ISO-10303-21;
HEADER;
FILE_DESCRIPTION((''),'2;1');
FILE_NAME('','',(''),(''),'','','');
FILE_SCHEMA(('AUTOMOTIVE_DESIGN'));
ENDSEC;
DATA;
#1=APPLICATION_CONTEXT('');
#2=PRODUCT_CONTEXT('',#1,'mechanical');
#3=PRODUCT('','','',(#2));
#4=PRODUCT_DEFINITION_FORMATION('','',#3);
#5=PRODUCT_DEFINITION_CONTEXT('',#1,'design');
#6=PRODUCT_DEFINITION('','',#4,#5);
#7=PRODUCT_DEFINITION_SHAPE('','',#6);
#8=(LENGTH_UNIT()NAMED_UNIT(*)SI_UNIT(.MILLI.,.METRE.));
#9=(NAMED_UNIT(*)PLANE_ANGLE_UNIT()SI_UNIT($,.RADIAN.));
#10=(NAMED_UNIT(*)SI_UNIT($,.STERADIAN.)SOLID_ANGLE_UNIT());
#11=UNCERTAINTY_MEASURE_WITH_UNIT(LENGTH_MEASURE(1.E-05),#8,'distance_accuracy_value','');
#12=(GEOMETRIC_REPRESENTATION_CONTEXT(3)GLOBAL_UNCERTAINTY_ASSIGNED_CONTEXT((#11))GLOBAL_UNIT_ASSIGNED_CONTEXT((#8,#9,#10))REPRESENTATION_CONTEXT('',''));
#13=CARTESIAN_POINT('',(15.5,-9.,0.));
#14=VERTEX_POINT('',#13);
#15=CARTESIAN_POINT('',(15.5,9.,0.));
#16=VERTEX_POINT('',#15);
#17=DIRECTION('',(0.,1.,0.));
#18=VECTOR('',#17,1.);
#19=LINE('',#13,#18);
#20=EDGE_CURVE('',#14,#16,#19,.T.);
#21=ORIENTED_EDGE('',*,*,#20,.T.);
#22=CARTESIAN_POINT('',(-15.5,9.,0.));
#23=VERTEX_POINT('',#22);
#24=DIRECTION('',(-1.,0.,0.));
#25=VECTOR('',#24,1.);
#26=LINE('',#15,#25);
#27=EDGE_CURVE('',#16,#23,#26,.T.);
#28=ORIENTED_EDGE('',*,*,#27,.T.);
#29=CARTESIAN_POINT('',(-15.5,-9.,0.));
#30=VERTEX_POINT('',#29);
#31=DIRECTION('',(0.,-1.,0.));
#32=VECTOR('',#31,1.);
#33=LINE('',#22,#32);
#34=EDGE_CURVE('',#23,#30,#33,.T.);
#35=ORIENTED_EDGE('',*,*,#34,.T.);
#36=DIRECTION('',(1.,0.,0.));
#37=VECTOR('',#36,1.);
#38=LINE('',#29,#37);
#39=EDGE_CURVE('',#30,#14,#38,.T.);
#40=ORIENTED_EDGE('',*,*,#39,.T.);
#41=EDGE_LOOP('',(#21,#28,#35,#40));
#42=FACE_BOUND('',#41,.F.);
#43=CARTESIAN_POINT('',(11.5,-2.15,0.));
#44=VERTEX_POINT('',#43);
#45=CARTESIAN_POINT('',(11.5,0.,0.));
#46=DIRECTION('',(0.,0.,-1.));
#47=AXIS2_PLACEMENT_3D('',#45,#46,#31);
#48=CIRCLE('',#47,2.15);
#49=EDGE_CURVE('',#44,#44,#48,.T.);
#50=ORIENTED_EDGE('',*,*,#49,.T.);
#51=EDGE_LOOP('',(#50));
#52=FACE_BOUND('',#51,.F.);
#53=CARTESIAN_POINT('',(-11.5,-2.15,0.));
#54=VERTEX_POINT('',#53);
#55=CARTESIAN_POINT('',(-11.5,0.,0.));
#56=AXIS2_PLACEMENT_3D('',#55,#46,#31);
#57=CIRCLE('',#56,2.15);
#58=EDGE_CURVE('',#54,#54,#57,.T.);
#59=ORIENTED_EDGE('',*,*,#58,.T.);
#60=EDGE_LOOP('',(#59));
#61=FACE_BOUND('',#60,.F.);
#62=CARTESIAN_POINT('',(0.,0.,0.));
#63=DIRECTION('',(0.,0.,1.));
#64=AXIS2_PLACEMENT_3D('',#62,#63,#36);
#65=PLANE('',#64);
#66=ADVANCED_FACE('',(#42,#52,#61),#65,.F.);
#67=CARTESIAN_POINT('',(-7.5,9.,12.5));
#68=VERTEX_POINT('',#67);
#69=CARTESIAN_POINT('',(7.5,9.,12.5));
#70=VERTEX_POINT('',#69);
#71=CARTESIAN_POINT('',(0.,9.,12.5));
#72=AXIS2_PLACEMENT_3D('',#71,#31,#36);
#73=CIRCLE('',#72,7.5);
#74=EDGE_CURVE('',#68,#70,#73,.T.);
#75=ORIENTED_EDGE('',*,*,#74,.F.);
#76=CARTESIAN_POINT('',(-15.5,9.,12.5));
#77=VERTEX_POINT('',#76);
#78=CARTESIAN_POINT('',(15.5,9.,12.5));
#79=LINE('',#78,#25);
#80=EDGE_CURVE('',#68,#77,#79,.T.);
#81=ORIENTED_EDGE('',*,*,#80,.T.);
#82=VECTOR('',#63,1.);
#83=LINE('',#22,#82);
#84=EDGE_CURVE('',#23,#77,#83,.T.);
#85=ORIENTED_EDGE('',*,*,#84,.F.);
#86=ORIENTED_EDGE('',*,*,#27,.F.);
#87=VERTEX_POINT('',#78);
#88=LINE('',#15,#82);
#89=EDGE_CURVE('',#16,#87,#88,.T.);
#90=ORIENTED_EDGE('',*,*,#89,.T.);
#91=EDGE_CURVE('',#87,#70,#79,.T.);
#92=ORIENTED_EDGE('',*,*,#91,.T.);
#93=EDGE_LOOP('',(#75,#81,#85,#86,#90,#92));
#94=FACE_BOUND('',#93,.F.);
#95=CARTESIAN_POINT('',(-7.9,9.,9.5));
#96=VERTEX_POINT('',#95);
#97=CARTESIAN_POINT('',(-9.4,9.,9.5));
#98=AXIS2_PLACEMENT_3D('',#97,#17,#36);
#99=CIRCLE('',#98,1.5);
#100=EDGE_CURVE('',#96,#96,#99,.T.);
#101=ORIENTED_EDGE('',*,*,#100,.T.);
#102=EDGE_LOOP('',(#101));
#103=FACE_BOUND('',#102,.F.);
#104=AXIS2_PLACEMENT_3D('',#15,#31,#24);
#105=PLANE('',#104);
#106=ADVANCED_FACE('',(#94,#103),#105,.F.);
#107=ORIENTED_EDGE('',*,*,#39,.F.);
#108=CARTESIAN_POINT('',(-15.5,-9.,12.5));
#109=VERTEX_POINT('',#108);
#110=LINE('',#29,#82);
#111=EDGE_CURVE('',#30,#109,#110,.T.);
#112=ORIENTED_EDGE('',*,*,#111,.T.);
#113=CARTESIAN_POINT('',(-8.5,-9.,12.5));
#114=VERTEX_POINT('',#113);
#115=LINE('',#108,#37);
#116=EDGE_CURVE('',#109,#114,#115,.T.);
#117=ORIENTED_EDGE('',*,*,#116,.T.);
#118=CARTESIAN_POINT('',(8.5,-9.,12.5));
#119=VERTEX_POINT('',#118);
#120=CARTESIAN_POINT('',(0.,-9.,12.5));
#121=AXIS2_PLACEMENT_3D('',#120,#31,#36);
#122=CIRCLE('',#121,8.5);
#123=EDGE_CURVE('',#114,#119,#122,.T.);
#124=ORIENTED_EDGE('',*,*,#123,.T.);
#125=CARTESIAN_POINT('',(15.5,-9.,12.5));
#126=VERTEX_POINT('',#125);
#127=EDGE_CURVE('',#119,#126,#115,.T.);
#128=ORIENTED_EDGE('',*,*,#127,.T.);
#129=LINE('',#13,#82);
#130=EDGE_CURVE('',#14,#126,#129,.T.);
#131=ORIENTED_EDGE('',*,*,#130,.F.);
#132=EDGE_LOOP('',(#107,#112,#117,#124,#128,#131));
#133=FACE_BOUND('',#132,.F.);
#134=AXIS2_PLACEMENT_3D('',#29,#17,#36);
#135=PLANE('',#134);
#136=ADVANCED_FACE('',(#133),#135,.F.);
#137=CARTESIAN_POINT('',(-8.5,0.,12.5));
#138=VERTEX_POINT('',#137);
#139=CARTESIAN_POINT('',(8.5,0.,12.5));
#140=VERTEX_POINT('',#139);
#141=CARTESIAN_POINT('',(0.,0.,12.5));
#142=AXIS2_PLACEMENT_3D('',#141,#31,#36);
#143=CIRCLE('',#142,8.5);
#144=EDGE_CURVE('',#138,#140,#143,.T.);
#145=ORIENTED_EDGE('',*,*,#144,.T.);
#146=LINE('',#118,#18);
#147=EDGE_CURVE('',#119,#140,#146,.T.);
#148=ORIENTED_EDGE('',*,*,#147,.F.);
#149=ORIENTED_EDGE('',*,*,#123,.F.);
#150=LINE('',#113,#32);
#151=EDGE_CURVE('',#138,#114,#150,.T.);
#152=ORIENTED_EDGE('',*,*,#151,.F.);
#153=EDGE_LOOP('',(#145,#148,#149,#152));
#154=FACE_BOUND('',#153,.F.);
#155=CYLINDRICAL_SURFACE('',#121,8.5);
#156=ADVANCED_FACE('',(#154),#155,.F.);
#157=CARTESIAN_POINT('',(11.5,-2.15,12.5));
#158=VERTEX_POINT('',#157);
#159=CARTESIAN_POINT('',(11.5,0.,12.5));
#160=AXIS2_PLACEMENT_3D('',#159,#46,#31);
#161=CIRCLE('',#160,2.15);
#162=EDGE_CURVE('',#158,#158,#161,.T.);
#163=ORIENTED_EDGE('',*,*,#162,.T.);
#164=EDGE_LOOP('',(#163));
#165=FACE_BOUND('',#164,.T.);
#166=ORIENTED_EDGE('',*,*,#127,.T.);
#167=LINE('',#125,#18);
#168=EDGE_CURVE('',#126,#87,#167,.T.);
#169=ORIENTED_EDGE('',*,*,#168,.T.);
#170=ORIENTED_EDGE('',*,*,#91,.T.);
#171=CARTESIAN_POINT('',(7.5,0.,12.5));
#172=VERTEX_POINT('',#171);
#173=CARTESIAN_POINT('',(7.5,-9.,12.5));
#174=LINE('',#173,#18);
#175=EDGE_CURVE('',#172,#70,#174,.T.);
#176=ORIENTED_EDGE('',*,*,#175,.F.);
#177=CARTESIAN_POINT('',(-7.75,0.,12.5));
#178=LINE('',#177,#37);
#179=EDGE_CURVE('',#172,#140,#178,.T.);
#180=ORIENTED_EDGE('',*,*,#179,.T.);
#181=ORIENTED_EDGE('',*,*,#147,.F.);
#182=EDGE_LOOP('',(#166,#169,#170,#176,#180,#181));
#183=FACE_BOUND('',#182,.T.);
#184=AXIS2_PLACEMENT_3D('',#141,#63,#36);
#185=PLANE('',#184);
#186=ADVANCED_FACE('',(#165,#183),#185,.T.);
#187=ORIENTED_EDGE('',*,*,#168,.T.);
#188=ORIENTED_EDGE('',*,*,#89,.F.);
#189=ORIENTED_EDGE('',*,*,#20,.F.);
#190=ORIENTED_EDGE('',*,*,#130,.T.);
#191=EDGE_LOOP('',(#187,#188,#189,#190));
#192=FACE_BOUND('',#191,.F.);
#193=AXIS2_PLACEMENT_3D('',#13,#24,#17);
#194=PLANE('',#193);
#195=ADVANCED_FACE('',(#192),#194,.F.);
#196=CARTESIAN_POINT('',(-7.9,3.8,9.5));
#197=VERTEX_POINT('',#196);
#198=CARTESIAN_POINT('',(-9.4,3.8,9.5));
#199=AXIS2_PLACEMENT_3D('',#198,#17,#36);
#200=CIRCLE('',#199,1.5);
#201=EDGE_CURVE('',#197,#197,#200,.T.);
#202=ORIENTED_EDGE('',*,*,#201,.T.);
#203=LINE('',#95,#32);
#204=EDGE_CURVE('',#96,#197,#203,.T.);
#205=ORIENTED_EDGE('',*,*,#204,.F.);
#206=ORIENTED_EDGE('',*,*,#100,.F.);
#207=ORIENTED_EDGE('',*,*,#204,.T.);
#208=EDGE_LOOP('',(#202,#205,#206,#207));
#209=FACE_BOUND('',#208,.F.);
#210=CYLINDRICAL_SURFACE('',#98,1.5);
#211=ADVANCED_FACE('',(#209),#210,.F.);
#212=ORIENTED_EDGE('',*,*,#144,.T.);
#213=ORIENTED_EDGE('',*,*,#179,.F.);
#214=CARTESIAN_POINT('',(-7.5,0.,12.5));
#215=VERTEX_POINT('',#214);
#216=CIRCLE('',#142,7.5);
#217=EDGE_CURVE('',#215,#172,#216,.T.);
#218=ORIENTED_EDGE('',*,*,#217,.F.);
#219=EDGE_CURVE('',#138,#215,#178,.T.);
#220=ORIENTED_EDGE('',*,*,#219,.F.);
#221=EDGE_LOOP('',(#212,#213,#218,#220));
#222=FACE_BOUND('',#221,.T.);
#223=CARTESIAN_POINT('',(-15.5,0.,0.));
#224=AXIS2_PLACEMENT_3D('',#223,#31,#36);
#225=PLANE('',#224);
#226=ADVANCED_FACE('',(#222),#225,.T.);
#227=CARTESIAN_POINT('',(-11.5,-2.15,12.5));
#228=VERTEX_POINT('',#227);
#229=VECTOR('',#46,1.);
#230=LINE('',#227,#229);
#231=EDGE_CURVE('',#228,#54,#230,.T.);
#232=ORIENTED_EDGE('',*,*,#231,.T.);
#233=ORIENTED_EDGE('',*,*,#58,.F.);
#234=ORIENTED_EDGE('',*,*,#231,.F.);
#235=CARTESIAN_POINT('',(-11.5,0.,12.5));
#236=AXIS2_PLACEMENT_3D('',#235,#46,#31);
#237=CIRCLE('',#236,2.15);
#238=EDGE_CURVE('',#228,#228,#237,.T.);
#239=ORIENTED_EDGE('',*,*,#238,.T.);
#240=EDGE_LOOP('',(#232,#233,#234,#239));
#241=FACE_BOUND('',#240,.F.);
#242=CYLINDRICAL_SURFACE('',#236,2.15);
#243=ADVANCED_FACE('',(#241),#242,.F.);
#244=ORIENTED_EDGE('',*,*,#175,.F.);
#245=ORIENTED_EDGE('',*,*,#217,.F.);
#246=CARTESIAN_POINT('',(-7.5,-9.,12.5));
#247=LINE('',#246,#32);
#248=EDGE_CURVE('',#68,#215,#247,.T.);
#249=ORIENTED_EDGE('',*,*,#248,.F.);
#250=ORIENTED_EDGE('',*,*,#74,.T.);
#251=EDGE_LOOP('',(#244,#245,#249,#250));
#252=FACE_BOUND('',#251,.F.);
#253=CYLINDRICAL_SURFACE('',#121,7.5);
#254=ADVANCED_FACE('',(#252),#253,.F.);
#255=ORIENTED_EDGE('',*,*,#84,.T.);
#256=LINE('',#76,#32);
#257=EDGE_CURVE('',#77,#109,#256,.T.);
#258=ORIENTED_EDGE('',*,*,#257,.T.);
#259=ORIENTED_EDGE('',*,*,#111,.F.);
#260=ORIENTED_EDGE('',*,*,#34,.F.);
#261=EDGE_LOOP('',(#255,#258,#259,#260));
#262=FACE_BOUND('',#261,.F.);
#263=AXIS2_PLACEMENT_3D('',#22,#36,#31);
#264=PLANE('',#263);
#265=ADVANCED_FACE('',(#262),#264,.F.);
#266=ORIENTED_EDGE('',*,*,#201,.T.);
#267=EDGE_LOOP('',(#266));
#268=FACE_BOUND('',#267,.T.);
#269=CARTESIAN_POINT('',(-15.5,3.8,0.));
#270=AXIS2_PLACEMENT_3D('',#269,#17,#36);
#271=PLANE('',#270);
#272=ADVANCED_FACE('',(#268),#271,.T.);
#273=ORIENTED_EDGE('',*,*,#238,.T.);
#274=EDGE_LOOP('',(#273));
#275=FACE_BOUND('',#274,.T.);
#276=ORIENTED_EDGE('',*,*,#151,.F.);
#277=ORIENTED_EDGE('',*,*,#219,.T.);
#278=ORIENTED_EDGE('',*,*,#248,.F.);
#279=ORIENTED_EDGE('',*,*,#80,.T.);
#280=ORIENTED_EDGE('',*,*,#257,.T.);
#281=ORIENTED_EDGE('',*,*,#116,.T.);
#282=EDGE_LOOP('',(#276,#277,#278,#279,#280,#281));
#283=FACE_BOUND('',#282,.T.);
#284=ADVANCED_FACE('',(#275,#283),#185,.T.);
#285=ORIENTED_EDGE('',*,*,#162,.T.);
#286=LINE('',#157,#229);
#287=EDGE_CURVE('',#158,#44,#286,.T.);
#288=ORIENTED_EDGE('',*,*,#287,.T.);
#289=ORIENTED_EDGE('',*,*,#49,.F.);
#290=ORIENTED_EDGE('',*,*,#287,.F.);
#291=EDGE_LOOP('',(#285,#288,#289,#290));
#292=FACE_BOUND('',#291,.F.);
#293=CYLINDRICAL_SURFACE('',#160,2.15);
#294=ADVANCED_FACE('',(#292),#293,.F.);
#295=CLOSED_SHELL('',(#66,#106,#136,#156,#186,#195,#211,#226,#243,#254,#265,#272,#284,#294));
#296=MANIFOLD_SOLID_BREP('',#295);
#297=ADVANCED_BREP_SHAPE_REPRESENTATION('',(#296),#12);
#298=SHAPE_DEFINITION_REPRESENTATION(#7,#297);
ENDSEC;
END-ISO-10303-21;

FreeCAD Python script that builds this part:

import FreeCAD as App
import Part
import Sketcher
from FreeCAD import Vector


def add_polygon(sketch, points):
    """Adds a closed chain of lines whose ends are joined by coincident constraints."""
    first, n = sketch.GeometryCount, len(points)
    for a, b in zip(points, points[1:] + points[:1]):
        sketch.addGeometry(Part.LineSegment(App.Vector(*a, 0), App.Vector(*b, 0)), False)
    for i in range(n):
        sketch.addConstraint(Sketcher.Constraint("Coincident", first + i, 2, first + (i + 1) % n, 1))

doc = App.newDocument("Part")
body = doc.addObject("PartDesign::Body", "Body")

# Sketch on XY plane
sketch1 = doc.addObject("Sketcher::SketchObject", "Sketch")
body.addObject(sketch1)
sketch1.AttachmentSupport = (doc.XY_Plane, [""])
sketch1.MapMode = "FlatFace"
add_polygon(sketch1, [(-16, 9), (-16, -9), (16, -9), (16, 9)])  # lines 0-3
sketch1.addConstraint(Sketcher.Constraint("Vertical", 0))
sketch1.addConstraint(Sketcher.Constraint("Horizontal", 1))
sketch1.addConstraint(Sketcher.Constraint("Vertical", 2))
sketch1.addConstraint(Sketcher.Constraint("Horizontal", 3))
sketch1.addConstraint(Sketcher.Constraint("Symmetric", 0, 2, 2, 2, -1, 1))
sketch1.addConstraint(Sketcher.Constraint("DistanceX", 1, 1, 1, 2, 31.0))
sketch1.addConstraint(Sketcher.Constraint("DistanceY", 0, 2, 0, 1, 18.0))
pad1 = doc.addObject("PartDesign::Pad", "Pad")
body.addObject(pad1)
pad1.Profile = sketch1
pad1.Length = 12.5

# Sketch on XZ plane
sketch2 = doc.addObject("Sketcher::SketchObject", "Sketch001")
body.addObject(sketch2)
sketch2.AttachmentSupport = (doc.XZ_Plane, [""])
sketch2.MapMode = "FlatFace"
sketch2.AttachmentOffset = App.Placement(Vector(0, 0, 9), App.Rotation())
sketch2.addGeometry(Part.Circle(Vector(0, 12, 0), Vector(0, 0, 1), 8), False)
sketch2.addConstraint(Sketcher.Constraint("PointOnObject", 0, 3, -2))
sketch2.addConstraint(Sketcher.Constraint("Diameter", 0, 15.0))
sketch2.addConstraint(Sketcher.Constraint("DistanceY", -1, 1, 0, 3, 12.5))
pocket1 = doc.addObject("PartDesign::Pocket", "Pocket")
body.addObject(pocket1)
pocket1.Profile = sketch2
pocket1.Type = "ThroughAll"

# Sketch on XY plane
sketch3 = doc.addObject("Sketcher::SketchObject", "Sketch002")
body.addObject(sketch3)
sketch3.AttachmentSupport = (doc.XY_Plane, [""])
sketch3.MapMode = "FlatFace"
sketch3.AttachmentOffset = App.Placement(Vector(0, 0, 12.5), App.Rotation())
sketch3.addGeometry(Part.Circle(Vector(-11.5, 0, 0), Vector(0, 0, 1), 2.1), False)
sketch3.addGeometry(Part.Circle(Vector(11.5, 0, 0), Vector(0, 0, 1), 2.1), False)
sketch3.addConstraint(Sketcher.Constraint("Equal", 0, 1))
sketch3.addConstraint(Sketcher.Constraint("Symmetric", 0, 3, 1, 3, -1, 1))
sketch3.addConstraint(Sketcher.Constraint("PointOnObject", 0, 3, -1))
sketch3.addConstraint(Sketcher.Constraint("Diameter", 0, 4.3))
sketch3.addConstraint(Sketcher.Constraint("DistanceX", 0, 3, 1, 3, 23.0))
doc.recompute()
hole = doc.addObject("PartDesign::Hole", "Hole")
body.addObject(hole)
hole.Profile = sketch3
hole.ThreadType = "None"
hole.Diameter = 4.3
hole.DepthType = "ThroughAll"

# Sketch on XZ plane
sketch4 = doc.addObject("Sketcher::SketchObject", "Sketch003")
body.addObject(sketch4)
sketch4.AttachmentSupport = (doc.XZ_Plane, [""])
sketch4.MapMode = "FlatFace"
sketch4.AttachmentOffset = App.Placement(Vector(0, 0, -9), App.Rotation())
sketch4.addGeometry(Part.Circle(Vector(-9.4, 9.5, 0), Vector(0, 0, 1), 1.5), False)
sketch4.addConstraint(Sketcher.Constraint("Diameter", 0, 3.0))
sketch4.addConstraint(Sketcher.Constraint("DistanceX", 0, 3, -1, 1, 9.4))
sketch4.addConstraint(Sketcher.Constraint("DistanceY", -1, 1, 0, 3, 9.5))
pocket2 = doc.addObject("PartDesign::Pocket", "Pocket001")
body.addObject(pocket2)
pocket2.Profile = sketch4
pocket2.Length = 5.2
pocket2.Reversed = True

# Sketch on XZ plane
sketch5 = doc.addObject("Sketcher::SketchObject", "Sketch004")
body.addObject(sketch5)
sketch5.AttachmentSupport = (doc.XZ_Plane, [""])
sketch5.MapMode = "FlatFace"
sketch5.AttachmentOffset = App.Placement(Vector(0, 0, 9), App.Rotation())
sketch5.addGeometry(Part.Circle(Vector(0, 12, 0), Vector(0, 0, 1), 8), False)
sketch5.addConstraint(Sketcher.Constraint("PointOnObject", 0, 3, -2))
sketch5.addConstraint(Sketcher.Constraint("Diameter", 0, 17.0))
sketch5.addConstraint(Sketcher.Constraint("DistanceY", -1, 1, 0, 3, 12.5))
pocket3 = doc.addObject("PartDesign::Pocket", "Pocket002")
body.addObject(pocket3)
pocket3.Profile = sketch5
pocket3.Length = 9

doc.recompute()
